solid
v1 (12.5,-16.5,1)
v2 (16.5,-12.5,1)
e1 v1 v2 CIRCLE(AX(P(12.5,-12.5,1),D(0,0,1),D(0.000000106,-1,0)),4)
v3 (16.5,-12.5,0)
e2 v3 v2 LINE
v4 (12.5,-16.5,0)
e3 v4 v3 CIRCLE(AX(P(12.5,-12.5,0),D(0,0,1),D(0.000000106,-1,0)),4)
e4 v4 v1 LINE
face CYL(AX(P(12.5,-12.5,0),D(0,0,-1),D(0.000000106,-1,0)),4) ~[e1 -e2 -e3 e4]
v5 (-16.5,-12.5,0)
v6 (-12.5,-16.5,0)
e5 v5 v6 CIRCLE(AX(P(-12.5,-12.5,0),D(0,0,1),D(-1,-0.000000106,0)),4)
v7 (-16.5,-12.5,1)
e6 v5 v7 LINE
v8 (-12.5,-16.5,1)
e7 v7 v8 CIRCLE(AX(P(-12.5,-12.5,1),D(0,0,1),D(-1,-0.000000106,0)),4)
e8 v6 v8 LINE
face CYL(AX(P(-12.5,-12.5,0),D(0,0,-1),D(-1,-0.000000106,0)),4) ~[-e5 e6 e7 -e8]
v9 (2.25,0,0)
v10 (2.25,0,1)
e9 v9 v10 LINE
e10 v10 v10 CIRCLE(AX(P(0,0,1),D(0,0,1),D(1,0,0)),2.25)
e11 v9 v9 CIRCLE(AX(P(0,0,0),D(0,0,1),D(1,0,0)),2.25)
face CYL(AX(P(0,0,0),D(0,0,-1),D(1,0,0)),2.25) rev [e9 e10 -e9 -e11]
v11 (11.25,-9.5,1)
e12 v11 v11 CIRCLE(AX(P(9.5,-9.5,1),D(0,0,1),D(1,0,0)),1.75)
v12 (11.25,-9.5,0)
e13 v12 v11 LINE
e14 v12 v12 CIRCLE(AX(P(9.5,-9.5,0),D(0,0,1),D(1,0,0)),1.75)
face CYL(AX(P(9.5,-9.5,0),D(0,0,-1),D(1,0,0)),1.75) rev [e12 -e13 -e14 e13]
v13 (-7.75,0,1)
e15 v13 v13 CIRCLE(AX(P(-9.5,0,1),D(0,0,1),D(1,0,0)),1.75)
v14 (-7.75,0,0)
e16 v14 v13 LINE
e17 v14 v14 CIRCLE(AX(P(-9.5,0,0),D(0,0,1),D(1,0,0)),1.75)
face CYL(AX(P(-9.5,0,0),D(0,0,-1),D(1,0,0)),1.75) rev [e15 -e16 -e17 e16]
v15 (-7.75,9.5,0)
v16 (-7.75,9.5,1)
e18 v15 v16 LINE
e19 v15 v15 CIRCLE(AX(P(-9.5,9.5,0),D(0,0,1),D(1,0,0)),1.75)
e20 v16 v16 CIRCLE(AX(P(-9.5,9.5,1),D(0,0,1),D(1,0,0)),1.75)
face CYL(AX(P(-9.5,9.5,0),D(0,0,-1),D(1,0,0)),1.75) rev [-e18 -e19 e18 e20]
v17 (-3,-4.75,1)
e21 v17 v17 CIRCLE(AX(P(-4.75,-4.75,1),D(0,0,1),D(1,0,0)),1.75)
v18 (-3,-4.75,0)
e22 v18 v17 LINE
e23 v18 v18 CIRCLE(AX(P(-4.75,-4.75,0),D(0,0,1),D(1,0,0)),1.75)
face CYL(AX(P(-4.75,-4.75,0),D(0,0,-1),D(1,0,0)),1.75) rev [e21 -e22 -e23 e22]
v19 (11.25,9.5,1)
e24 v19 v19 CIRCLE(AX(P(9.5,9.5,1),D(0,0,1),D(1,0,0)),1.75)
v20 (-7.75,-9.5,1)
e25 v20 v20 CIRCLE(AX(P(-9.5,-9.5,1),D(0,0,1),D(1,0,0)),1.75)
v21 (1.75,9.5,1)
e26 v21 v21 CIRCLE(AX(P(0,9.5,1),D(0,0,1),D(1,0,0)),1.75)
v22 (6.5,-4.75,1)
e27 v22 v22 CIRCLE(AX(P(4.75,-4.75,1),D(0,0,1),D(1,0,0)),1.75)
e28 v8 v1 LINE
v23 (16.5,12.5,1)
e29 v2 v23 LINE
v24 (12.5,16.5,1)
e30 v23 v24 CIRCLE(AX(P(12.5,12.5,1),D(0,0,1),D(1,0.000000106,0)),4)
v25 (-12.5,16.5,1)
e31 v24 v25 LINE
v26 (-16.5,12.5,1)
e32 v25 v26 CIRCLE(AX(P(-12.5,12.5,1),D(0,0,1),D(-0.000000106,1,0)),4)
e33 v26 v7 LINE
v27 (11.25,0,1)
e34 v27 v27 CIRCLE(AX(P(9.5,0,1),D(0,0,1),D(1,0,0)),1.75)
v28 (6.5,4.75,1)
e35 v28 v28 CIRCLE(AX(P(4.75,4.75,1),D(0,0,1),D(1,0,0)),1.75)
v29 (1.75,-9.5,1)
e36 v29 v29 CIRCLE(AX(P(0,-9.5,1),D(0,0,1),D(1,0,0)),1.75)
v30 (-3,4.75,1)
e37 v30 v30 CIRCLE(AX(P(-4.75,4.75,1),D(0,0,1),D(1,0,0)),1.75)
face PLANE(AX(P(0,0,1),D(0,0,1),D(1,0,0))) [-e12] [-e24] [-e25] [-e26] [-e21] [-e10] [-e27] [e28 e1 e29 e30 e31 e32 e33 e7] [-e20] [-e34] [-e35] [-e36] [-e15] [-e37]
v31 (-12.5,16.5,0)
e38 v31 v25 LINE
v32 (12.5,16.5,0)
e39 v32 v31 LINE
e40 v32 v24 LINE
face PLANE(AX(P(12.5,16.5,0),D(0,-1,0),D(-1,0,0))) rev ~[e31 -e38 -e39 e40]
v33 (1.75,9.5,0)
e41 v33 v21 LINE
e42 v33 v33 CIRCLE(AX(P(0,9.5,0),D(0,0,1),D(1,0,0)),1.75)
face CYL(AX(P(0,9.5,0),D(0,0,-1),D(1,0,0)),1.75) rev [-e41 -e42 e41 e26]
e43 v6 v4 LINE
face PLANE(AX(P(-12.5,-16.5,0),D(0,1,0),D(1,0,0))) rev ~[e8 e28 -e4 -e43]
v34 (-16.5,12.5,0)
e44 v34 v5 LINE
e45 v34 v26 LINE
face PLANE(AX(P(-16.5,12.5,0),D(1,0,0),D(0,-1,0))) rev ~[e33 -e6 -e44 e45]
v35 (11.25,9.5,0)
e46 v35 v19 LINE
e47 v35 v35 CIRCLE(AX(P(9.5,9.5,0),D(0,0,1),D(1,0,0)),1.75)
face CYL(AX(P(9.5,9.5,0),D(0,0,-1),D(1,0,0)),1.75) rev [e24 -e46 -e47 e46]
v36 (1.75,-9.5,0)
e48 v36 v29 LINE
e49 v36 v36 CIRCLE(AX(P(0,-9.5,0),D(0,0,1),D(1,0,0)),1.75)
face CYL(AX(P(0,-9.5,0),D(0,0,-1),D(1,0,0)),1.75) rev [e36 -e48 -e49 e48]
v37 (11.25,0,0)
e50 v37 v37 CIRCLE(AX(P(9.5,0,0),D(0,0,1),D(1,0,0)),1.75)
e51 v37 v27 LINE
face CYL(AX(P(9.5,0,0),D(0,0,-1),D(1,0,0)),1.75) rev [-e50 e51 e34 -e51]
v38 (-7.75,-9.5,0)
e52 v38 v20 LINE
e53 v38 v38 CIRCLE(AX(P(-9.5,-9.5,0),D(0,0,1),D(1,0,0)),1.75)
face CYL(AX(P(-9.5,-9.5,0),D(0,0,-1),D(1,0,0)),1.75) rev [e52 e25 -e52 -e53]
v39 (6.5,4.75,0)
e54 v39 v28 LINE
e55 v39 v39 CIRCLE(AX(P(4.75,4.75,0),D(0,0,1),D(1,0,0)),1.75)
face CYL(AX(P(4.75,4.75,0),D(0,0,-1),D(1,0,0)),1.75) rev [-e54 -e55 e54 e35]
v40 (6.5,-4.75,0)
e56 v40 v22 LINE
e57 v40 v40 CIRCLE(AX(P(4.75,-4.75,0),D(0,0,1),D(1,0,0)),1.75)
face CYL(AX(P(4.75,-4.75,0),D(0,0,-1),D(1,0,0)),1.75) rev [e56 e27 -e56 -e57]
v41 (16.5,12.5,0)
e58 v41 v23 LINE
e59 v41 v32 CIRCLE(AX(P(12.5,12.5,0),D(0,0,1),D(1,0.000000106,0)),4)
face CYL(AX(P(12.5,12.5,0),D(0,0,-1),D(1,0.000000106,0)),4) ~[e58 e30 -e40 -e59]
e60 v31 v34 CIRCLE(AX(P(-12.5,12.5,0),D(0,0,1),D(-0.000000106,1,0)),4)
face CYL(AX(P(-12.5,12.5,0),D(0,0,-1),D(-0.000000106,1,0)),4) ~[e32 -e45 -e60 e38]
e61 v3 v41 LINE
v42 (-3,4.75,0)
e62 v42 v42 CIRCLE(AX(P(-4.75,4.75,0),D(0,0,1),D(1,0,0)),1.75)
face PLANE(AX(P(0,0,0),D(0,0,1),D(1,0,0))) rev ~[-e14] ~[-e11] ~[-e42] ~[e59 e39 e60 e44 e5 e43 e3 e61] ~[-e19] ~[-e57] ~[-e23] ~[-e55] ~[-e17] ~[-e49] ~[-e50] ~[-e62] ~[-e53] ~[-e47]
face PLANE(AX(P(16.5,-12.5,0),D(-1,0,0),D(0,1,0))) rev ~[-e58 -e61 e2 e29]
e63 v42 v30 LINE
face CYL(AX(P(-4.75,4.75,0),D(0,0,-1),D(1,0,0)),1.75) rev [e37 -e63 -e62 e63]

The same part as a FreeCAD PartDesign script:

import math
import FreeCAD as App
import Part
import Sketcher
from FreeCAD import Vector
Q = App.Units.Quantity

doc = App.newDocument("Part")
body = doc.addObject("PartDesign::Body", "Body")

# Sketch on XY plane
sketch1 = body.newObject("Sketcher::SketchObject", "Sketch")
sketch1.AttachmentSupport = (doc.getObject("XY_Plane"), [""])
sketch1.MapMode = "FlatFace"
sketch1.addGeometry([
    Part.ArcOfCircle(Part.Circle(Vector(12.5, 12.5, 0), Vector(0, 0, 1), 4), math.radians(0), math.radians(90)),  # 0
    Part.LineSegment(Vector(12.5, 16.5, 0), Vector(-12.5, 16.5, 0)),  # 1
    Part.ArcOfCircle(Part.Circle(Vector(-12.5, 12.5, 0), Vector(0, 0, 1), 4), math.radians(90), math.radians(180)),  # 2
    Part.LineSegment(Vector(-16.5, 12.5, 0), Vector(-16.5, -12.5, 0)),  # 3
    Part.ArcOfCircle(Part.Circle(Vector(-12.5, -12.5, 0), Vector(0, 0, 1), 4), math.radians(-180), math.radians(-90)),  # 4
    Part.LineSegment(Vector(-12.5, -16.5, 0), Vector(12.5, -16.5, 0)),  # 5
    Part.ArcOfCircle(Part.Circle(Vector(12.5, -12.5, 0), Vector(0, 0, 1), 4), math.radians(-90), math.radians(0)),  # 6
    Part.LineSegment(Vector(16.5, -12.5, 0), Vector(16.5, 12.5, 0)),  # 7
    Part.Circle(Vector(-9.5, -9.5, 0), Vector(0, 0, 1), 1.8),  # 8
    Part.Circle(Vector(-4.8, -4.8, 0), Vector(0, 0, 1), 1.8),  # 9
    Part.Circle(Vector(0, -9.5, 0), Vector(0, 0, 1), 1.8),  # 10
    Part.Circle(Vector(9.5, -9.5, 0), Vector(0, 0, 1), 1.8),  # 11
    Part.Circle(Vector(4.8, -4.8, 0), Vector(0, 0, 1), 1.8),  # 12
    Part.Circle(Vector(-9.5, 0, 0), Vector(0, 0, 1), 1.8),  # 13
    Part.Circle(Vector(-4.8, 4.8, 0), Vector(0, 0, 1), 1.8),  # 14
    Part.Circle(Vector(-9.5, 9.5, 0), Vector(0, 0, 1), 1.8),  # 15
    Part.Circle(Vector(0, 0, 0), Vector(0, 0, 1), 2.2),  # 16
    Part.Circle(Vector(4.8, 4.8, 0), Vector(0, 0, 1), 1.8),  # 17
    Part.Circle(Vector(9.5, 0, 0), Vector(0, 0, 1), 1.8),  # 18
    Part.Circle(Vector(0, 9.5, 0), Vector(0, 0, 1), 1.8),  # 19
    Part.Circle(Vector(9.5, 9.5, 0), Vector(0, 0, 1), 1.8),  # 20
], False)
sketch1.addConstraint([
    Sketcher.Constraint("Tangent", 0, 2, 1, 1),
    Sketcher.Constraint("Tangent", 1, 2, 2, 1),
    Sketcher.Constraint("Tangent", 2, 2, 3, 1),
    Sketcher.Constraint("Tangent", 3, 2, 4, 1),
    Sketcher.Constraint("Tangent", 4, 2, 5, 1),
    Sketcher.Constraint("Tangent", 5, 2, 6, 1),
    Sketcher.Constraint("Tangent", 6, 2, 7, 1),
    Sketcher.Constraint("Tangent", 7, 2, 0, 1),
    Sketcher.Constraint("Horizontal", 1),
    Sketcher.Constraint("Vertical", 3),
    Sketcher.Constraint("Horizontal", 5),
    Sketcher.Constraint("Vertical", 7),
    Sketcher.Constraint("Coincident", 16, 3, -1, 1),
    Sketcher.Constraint("Equal", 0, 2),
    Sketcher.Constraint("Equal", 2, 4),
    Sketcher.Constraint("Equal", 4, 6),
    Sketcher.Constraint("Equal", 8, 9),
    Sketcher.Constraint("Equal", 9, 10),
    Sketcher.Constraint("Equal", 10, 11),
    Sketcher.Constraint("Equal", 11, 12),
    Sketcher.Constraint("Equal", 12, 13),
    Sketcher.Constraint("Equal", 13, 14),
    Sketcher.Constraint("Equal", 14, 15),
    Sketcher.Constraint("Equal", 15, 17),
    Sketcher.Constraint("Equal", 17, 18),
    Sketcher.Constraint("Equal", 18, 19),
    Sketcher.Constraint("Equal", 19, 20),
    Sketcher.Constraint("Symmetric", 0, 3, 4, 3, -1, 1),
    Sketcher.Constraint("Symmetric", 12, 3, 14, 3, -1, 1),
    Sketcher.Constraint("Symmetric", 11, 3, 15, 3, -1, 1),
    Sketcher.Constraint("Symmetric", 9, 3, 17, 3, -1, 1),
    Sketcher.Constraint("Symmetric", 13, 3, 18, 3, -1, 1),
    Sketcher.Constraint("Symmetric", 10, 3, 19, 3, -1, 1),
    Sketcher.Constraint("Symmetric", 8, 3, 20, 3, -1, 1),
    Sketcher.Constraint("Symmetric", 8, 3, 11, 3, -2),
    Sketcher.Constraint("Symmetric", 9, 3, 12, 3, -2),
    Sketcher.Constraint("PointOnObject", 10, 3, -2),
    Sketcher.Constraint("PointOnObject", 13, 3, -1),
    Sketcher.Constraint("Horizontal", 8, 3, 10, 3),
    Sketcher.Constraint("Vertical", 8, 3, 13, 3),
    Sketcher.Constraint("Equal", 5, 3),
    Sketcher.Constraint("Radius", 0, Q("4 mm")),
    Sketcher.Constraint("Diameter", 8, Q("3.5 mm")),
    Sketcher.Constraint("Diameter", 16, Q("4.5 mm")),
    Sketcher.Constraint("DistanceX", 1, 2, 1, 1, Q("25 mm")),
    Sketcher.Constraint("DistanceX", 4, 3, 8, 3, Q("3 mm")),
    Sketcher.Constraint("DistanceY", 4, 3, 8, 3, Q("3 mm")),
    Sketcher.Constraint("DistanceX", 9, 3, 12, 3, Q("9.5 mm")),
    Sketcher.Constraint("DistanceY", 9, 3, 14, 3, Q("9.5 mm")),
])
pad1 = body.newObject("PartDesign::Pad", "Pad")
pad1.Profile = sketch1
pad1.Length = 1

doc.recompute()
